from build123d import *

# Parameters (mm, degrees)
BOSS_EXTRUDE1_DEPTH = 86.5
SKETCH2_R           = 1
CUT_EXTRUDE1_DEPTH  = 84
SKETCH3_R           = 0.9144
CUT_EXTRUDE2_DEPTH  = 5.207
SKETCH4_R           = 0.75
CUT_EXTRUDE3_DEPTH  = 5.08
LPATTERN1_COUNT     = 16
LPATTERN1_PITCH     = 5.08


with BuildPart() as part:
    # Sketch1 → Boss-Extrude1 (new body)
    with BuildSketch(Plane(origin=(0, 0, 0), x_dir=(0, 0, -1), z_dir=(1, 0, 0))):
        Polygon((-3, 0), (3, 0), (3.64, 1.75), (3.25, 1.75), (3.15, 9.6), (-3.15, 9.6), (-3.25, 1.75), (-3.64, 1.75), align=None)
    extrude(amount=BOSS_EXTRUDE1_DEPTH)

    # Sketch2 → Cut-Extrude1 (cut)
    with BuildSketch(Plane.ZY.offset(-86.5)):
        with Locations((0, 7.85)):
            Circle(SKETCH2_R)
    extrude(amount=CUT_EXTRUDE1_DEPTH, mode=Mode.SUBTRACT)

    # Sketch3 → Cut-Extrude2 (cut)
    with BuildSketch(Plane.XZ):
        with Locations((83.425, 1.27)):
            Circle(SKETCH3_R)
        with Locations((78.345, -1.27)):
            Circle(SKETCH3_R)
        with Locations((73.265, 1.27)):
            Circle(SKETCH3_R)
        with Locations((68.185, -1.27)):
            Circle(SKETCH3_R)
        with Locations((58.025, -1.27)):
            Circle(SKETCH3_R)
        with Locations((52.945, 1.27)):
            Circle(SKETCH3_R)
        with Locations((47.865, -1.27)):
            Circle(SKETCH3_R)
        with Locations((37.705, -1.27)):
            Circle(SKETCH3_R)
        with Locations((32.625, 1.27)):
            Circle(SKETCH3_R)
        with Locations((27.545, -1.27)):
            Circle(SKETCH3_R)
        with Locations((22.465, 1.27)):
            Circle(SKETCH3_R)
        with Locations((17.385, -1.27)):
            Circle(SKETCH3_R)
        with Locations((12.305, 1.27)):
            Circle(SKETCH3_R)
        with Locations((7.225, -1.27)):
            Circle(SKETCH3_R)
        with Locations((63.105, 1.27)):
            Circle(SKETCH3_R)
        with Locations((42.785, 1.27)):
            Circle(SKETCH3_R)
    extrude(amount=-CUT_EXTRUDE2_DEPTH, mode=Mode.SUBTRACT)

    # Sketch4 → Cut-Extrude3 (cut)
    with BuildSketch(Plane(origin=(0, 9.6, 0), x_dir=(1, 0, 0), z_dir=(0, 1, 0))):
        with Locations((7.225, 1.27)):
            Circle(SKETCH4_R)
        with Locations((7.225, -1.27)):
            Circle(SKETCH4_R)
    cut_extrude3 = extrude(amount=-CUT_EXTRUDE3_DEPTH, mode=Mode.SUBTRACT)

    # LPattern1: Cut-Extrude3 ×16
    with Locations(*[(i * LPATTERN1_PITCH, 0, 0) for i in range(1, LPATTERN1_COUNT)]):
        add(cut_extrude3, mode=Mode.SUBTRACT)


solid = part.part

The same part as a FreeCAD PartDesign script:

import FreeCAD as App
import Part
import Sketcher


def add_polygon(sketch, points):
    """Adds a closed chain of lines whose ends are joined by coincident constraints."""
    first, n = sketch.GeometryCount, len(points)
    for a, b in zip(points, points[1:] + points[:1]):
        sketch.addGeometry(Part.LineSegment(App.Vector(*a, 0), App.Vector(*b, 0)), False)
    for i in range(n):
        sketch.addConstraint(Sketcher.Constraint("Coincident", first + i, 2, first + (i + 1) % n, 1))

doc = App.newDocument("Part")
params = doc.addObject("Spreadsheet::Sheet", "Params")
for row, (alias, value) in enumerate([
    ("sketch1_height", "6 mm"),
    ("sketch1_height2", "6.3 mm"),
    ("sketch1_height3", "0.39 mm"),
    ("pad1_length", "86.5 mm"),
    ("sketch2_diameter", "2 mm"),
    ("pocket1_length", "84 mm"),
    ("pocket2_length", "5.207 mm"),
    ("sketch4_diameter", "1.5 mm"),
    ("pocket3_length", "5.08 mm"),
    ("linearpattern_pitch", "5.08 mm"),
], start=1):
    params.set(f"A{row}", alias)
    params.set(f"B{row}", "=" + value)
    params.setAlias(f"B{row}", alias)

body = doc.addObject("PartDesign::Body", "Body")

# Sketch on YZ plane
sketch1 = body.newObject("Sketcher::SketchObject", "Sketch")
sketch1.AttachmentSupport = (doc.getObject("YZ_Plane"), [""])
sketch1.MapMode = "FlatFace"
add_polygon(sketch1, [(0, 3), (0, -3), (1.75, -3.64), (1.75, -3.25), (9.6, -3.15), (9.6, 3.15), (1.75, 3.25), (1.75, 3.64)])  # lines 0-7
sketch1.addConstraint(Sketcher.Constraint("Vertical", 0))
sketch1.addConstraint(Sketcher.Constraint("Vertical", 2))
sketch1.addConstraint(Sketcher.Constraint("Vertical", 4))
sketch1.addConstraint(Sketcher.Constraint("Vertical", 6))
sketch1.addConstraint(Sketcher.Constraint("Symmetric", 0, 2, 7, 2, -1, 1))
sketch1.addConstraint(Sketcher.Constraint("Symmetric", 2, 2, 5, 2, -1))
sketch1.addConstraint(Sketcher.Constraint("Equal", 2, 6))
sketch1.addConstraint(Sketcher.Constraint("Equal", 3, 5))
sketch1.addConstraint(Sketcher.Constraint("DistanceY", 0, 2, 0, 1, 6.0))
sketch1.addConstraint(Sketcher.Constraint("DistanceY", 4, 1, 4, 2, 6.3))
sketch1.addConstraint(Sketcher.Constraint("DistanceY", 2, 1, 2, 2, 0.39))
sketch1.addConstraint(Sketcher.Constraint("DistanceX", -1, 1, 3, 2, 9.6))
sketch1.addConstraint(Sketcher.Constraint("DistanceY", 2, 2, 3, 2, 0.1))
sketch1.addConstraint(Sketcher.Constraint("DistanceX", -1, 1, 1, 2, 1.75))
sketch1.setExpression("Constraints[16]", "Params.sketch1_height")
sketch1.setExpression("Constraints[17]", "Params.sketch1_height2")
sketch1.setExpression("Constraints[18]", "Params.sketch1_height3")
pad1 = body.newObject("PartDesign::Pad", "Pad")
pad1.Profile = sketch1
pad1.setExpression("Length", "Params.pad1_length")

# Sketch on YZ plane
sketch2 = body.newObject("Sketcher::SketchObject", "Sketch001")
sketch2.AttachmentSupport = (doc.getObject("YZ_Plane"), [""])
sketch2.MapMode = "FlatFace"
sketch2.AttachmentOffset = App.Placement(App.Vector(0, 0, 86.5), App.Rotation())
sketch2.addGeometry(Part.Circle(App.Vector(7.85, 0, 0), App.Vector(0, 0, 1), 1), False)
sketch2.addConstraint(Sketcher.Constraint("PointOnObject", 0, 3, -1))
sketch2.addConstraint(Sketcher.Constraint("Diameter", 0, 2.0))
sketch2.addConstraint(Sketcher.Constraint("DistanceX", -1, 1, 0, 3, 7.85))
sketch2.setExpression("Constraints[1]", "Params.sketch2_diameter")
pocket1 = body.newObject("PartDesign::Pocket", "Pocket")
pocket1.Profile = sketch2
pocket1.setExpression("Length", "Params.pocket1_length")

# Sketch on XZ plane
sketch3 = body.newObject("Sketcher::SketchObject", "Sketch002")
sketch3.AttachmentSupport = (doc.getObject("XZ_Plane"), [""])
sketch3.MapMode = "FlatFace"
sketch3.addGeometry(Part.Circle(App.Vector(83.425, 1.27, 0), App.Vector(0, 0, 1), 0.9144), False)
sketch3.addGeometry(Part.Circle(App.Vector(78.345, -1.27, 0), App.Vector(0, 0, 1), 0.9144), False)
sketch3.addGeometry(Part.Circle(App.Vector(73.265, 1.27, 0), App.Vector(0, 0, 1), 0.9144), False)
sketch3.addGeometry(Part.Circle(App.Vector(68.185, -1.27, 0), App.Vector(0, 0, 1), 0.9144), False)
sketch3.addGeometry(Part.Circle(App.Vector(58.025, -1.27, 0), App.Vector(0, 0, 1), 0.9144), False)
sketch3.addGeometry(Part.Circle(App.Vector(52.945, 1.27, 0), App.Vector(0, 0, 1), 0.9144), False)
sketch3.addGeometry(Part.Circle(App.Vector(47.865, -1.27, 0), App.Vector(0, 0, 1), 0.9144), False)
sketch3.addGeometry(Part.Circle(App.Vector(37.705, -1.27, 0), App.Vector(0, 0, 1), 0.9144), False)
sketch3.addGeometry(Part.Circle(App.Vector(32.625, 1.27, 0), App.Vector(0, 0, 1), 0.9144), False)
sketch3.addGeometry(Part.Circle(App.Vector(27.545, -1.27, 0), App.Vector(0, 0, 1), 0.9144), False)
sketch3.addGeometry(Part.Circle(App.Vector(22.465, 1.27, 0), App.Vector(0, 0, 1), 0.9144), False)
sketch3.addGeometry(Part.Circle(App.Vector(17.385, -1.27, 0), App.Vector(0, 0, 1), 0.9144), False)
sketch3.addGeometry(Part.Circle(App.Vector(12.305, 1.27, 0), App.Vector(0, 0, 1), 0.9144), False)
sketch3.addGeometry(Part.Circle(App.Vector(7.225, -1.27, 0), App.Vector(0, 0, 1), 0.9144), False)
sketch3.addGeometry(Part.Circle(App.Vector(63.105, 1.27, 0), App.Vector(0, 0, 1), 0.9144), False)
sketch3.addGeometry(Part.Circle(App.Vector(42.785, 1.27, 0), App.Vector(0, 0, 1), 0.9144), False)
sketch3.addConstraint(Sketcher.Constraint("Equal", 0, 1))
sketch3.addConstraint(Sketcher.Constraint("Equal", 1, 2))
sketch3.addConstraint(Sketcher.Constraint("Equal", 2, 3))
sketch3.addConstraint(Sketcher.Constraint("Equal", 3, 4))
sketch3.addConstraint(Sketcher.Constraint("Equal", 4, 5))
sketch3.addConstraint(Sketcher.Constraint("Equal", 5, 6))
sketch3.addConstraint(Sketcher.Constraint("Equal", 6, 7))
sketch3.addConstraint(Sketcher.Constraint("Equal", 7, 8))
sketch3.addConstraint(Sketcher.Constraint("Equal", 8, 9))
sketch3.addConstraint(Sketcher.Constraint("Equal", 9, 10))
sketch3.addConstraint(Sketcher.Constraint("Equal", 10, 11))
sketch3.addConstraint(Sketcher.Constraint("Equal", 11, 12))
sketch3.addConstraint(Sketcher.Constraint("Equal", 12, 13))
sketch3.addConstraint(Sketcher.Constraint("Equal", 13, 14))
sketch3.addConstraint(Sketcher.Constraint("Equal", 14, 15))
sketch3.addConstraint(Sketcher.Constraint("Horizontal", 0, 3, 2, 3))
sketch3.addConstraint(Sketcher.Constraint("Horizontal", 1, 3, 3, 3))
sketch3.addConstraint(Sketcher.Constraint("Horizontal", 3, 3, 4, 3))
sketch3.addConstraint(Sketcher.Constraint("Horizontal", 2, 3, 5, 3))
sketch3.addConstraint(Sketcher.Constraint("Horizontal", 4, 3, 6, 3))
sketch3.addConstraint(Sketcher.Constraint("Horizontal", 6, 3, 7, 3))
sketch3.addConstraint(Sketcher.Constraint("Horizontal", 5, 3, 8, 3))
sketch3.addConstraint(Sketcher.Constraint("Horizontal", 7, 3, 9, 3))
sketch3.addConstraint(Sketcher.Constraint("Horizontal", 8, 3, 10, 3))
sketch3.addConstraint(Sketcher.Constraint("Horizontal", 9, 3, 11, 3))
sketch3.addConstraint(Sketcher.Constraint("Horizontal", 10, 3, 12, 3))
sketch3.addConstraint(Sketcher.Constraint("Horizontal", 11, 3, 13, 3))
sketch3.addConstraint(Sketcher.Constraint("Horizontal", 12, 3, 14, 3))
sketch3.addConstraint(Sketcher.Constraint("Horizontal", 14, 3, 15, 3))
sketch3.addConstraint(Sketcher.Constraint("Diameter", 0, 1.8288))
sketch3.addConstraint(Sketcher.Constraint("DistanceX", 4, 3, 0, 3, 25.4))
sketch3.addConstraint(Sketcher.Constraint("DistanceX", 5, 3, 1, 3, 25.4))
sketch3.addConstraint(Sketcher.Constraint("DistanceX", 6, 3, 2, 3, 25.4))
sketch3.addConstraint(Sketcher.Constraint("DistanceX", 8, 3, 4, 3, 25.4))
sketch3.addConstraint(Sketcher.Constraint("DistanceX", 9, 3, 5, 3, 25.4))
sketch3.addConstraint(Sketcher.Constraint("DistanceX", 10, 3, 6, 3, 25.4))
sketch3.addConstraint(Sketcher.Constraint("DistanceX", 12, 3, 7, 3, 25.4))
sketch3.addConstraint(Sketcher.Constraint("DistanceX", 13, 3, 8, 3, 25.4))
sketch3.addConstraint(Sketcher.Constraint("DistanceY", -1, 1, 0, 3, 1.27))
sketch3.addConstraint(Sketcher.Constraint("DistanceY", 1, 3, -1, 1, 1.27))
sketch3.addConstraint(Sketcher.Constraint("DistanceX", 1, 3, 0, 3, 5.08))
sketch3.addConstraint(Sketcher.Constraint("DistanceX", 2, 3, 1, 3, 5.08))
sketch3.addConstraint(Sketcher.Constraint("DistanceX", 3, 3, 2, 3, 5.08))
sketch3.addConstraint(Sketcher.Constraint("DistanceX", 7, 3, 6, 3, 10.16))
sketch3.addConstraint(Sketcher.Constraint("DistanceX", 11, 3, 10, 3, 5.08))
sketch3.addConstraint(Sketcher.Constraint("DistanceX", 4, 3, 14, 3, 5.08))
sketch3.addConstraint(Sketcher.Constraint("DistanceX", 7, 3, 15, 3, 5.08))
sketch3.addConstraint(Sketcher.Constraint("DistanceX", -1, 1, 0, 3, 83.425))
pocket2 = body.newObject("PartDesign::Pocket", "Pocket001")
pocket2.Profile = sketch3
pocket2.setExpression("Length", "Params.pocket2_length")

# Sketch on XZ plane
sketch4 = body.newObject("Sketcher::SketchObject", "Sketch003")
sketch4.AttachmentSupport = (doc.getObject("XZ_Plane"), [""])
sketch4.MapMode = "FlatFace"
sketch4.AttachmentOffset = App.Placement(App.Vector(0, 0, -9.6), App.Rotation())
sketch4.addGeometry(Part.Circle(App.Vector(7.225, -1.27, 0), App.Vector(0, 0, 1), 0.75), False)
sketch4.addGeometry(Part.Circle(App.Vector(7.225, 1.27, 0), App.Vector(0, 0, 1), 0.75), False)
sketch4.addConstraint(Sketcher.Constraint("Equal", 0, 1))
sketch4.addConstraint(Sketcher.Constraint("Symmetric", 0, 3, 1, 3, -1))
sketch4.addConstraint(Sketcher.Constraint("Diameter", 0, 1.5))
sketch4.addConstraint(Sketcher.Constraint("DistanceY", 0, 3, -1, 1, 1.27))
sketch4.addConstraint(Sketcher.Constraint("DistanceX", -1, 1, 0, 3, 7.225))
sketch4.setExpression("Constraints[2]", "Params.sketch4_diameter")
pocket3 = body.newObject("PartDesign::Pocket", "Pocket002")
pocket3.Profile = sketch4
pocket3.setExpression("Length", "Params.pocket3_length")
pocket3.Reversed = True
doc.recompute()

linearpattern = body.newObject("PartDesign::LinearPattern", "LinearPattern")
linearpattern.Originals = [pocket3]
linearpattern.Direction = (doc.getObject("X_Axis"), [""])
linearpattern.Mode = "offset"
linearpattern.setExpression("Offset", "Params.linearpattern_pitch")
linearpattern.Occurrences = 16
body.Tip = linearpattern

doc.recompute()
